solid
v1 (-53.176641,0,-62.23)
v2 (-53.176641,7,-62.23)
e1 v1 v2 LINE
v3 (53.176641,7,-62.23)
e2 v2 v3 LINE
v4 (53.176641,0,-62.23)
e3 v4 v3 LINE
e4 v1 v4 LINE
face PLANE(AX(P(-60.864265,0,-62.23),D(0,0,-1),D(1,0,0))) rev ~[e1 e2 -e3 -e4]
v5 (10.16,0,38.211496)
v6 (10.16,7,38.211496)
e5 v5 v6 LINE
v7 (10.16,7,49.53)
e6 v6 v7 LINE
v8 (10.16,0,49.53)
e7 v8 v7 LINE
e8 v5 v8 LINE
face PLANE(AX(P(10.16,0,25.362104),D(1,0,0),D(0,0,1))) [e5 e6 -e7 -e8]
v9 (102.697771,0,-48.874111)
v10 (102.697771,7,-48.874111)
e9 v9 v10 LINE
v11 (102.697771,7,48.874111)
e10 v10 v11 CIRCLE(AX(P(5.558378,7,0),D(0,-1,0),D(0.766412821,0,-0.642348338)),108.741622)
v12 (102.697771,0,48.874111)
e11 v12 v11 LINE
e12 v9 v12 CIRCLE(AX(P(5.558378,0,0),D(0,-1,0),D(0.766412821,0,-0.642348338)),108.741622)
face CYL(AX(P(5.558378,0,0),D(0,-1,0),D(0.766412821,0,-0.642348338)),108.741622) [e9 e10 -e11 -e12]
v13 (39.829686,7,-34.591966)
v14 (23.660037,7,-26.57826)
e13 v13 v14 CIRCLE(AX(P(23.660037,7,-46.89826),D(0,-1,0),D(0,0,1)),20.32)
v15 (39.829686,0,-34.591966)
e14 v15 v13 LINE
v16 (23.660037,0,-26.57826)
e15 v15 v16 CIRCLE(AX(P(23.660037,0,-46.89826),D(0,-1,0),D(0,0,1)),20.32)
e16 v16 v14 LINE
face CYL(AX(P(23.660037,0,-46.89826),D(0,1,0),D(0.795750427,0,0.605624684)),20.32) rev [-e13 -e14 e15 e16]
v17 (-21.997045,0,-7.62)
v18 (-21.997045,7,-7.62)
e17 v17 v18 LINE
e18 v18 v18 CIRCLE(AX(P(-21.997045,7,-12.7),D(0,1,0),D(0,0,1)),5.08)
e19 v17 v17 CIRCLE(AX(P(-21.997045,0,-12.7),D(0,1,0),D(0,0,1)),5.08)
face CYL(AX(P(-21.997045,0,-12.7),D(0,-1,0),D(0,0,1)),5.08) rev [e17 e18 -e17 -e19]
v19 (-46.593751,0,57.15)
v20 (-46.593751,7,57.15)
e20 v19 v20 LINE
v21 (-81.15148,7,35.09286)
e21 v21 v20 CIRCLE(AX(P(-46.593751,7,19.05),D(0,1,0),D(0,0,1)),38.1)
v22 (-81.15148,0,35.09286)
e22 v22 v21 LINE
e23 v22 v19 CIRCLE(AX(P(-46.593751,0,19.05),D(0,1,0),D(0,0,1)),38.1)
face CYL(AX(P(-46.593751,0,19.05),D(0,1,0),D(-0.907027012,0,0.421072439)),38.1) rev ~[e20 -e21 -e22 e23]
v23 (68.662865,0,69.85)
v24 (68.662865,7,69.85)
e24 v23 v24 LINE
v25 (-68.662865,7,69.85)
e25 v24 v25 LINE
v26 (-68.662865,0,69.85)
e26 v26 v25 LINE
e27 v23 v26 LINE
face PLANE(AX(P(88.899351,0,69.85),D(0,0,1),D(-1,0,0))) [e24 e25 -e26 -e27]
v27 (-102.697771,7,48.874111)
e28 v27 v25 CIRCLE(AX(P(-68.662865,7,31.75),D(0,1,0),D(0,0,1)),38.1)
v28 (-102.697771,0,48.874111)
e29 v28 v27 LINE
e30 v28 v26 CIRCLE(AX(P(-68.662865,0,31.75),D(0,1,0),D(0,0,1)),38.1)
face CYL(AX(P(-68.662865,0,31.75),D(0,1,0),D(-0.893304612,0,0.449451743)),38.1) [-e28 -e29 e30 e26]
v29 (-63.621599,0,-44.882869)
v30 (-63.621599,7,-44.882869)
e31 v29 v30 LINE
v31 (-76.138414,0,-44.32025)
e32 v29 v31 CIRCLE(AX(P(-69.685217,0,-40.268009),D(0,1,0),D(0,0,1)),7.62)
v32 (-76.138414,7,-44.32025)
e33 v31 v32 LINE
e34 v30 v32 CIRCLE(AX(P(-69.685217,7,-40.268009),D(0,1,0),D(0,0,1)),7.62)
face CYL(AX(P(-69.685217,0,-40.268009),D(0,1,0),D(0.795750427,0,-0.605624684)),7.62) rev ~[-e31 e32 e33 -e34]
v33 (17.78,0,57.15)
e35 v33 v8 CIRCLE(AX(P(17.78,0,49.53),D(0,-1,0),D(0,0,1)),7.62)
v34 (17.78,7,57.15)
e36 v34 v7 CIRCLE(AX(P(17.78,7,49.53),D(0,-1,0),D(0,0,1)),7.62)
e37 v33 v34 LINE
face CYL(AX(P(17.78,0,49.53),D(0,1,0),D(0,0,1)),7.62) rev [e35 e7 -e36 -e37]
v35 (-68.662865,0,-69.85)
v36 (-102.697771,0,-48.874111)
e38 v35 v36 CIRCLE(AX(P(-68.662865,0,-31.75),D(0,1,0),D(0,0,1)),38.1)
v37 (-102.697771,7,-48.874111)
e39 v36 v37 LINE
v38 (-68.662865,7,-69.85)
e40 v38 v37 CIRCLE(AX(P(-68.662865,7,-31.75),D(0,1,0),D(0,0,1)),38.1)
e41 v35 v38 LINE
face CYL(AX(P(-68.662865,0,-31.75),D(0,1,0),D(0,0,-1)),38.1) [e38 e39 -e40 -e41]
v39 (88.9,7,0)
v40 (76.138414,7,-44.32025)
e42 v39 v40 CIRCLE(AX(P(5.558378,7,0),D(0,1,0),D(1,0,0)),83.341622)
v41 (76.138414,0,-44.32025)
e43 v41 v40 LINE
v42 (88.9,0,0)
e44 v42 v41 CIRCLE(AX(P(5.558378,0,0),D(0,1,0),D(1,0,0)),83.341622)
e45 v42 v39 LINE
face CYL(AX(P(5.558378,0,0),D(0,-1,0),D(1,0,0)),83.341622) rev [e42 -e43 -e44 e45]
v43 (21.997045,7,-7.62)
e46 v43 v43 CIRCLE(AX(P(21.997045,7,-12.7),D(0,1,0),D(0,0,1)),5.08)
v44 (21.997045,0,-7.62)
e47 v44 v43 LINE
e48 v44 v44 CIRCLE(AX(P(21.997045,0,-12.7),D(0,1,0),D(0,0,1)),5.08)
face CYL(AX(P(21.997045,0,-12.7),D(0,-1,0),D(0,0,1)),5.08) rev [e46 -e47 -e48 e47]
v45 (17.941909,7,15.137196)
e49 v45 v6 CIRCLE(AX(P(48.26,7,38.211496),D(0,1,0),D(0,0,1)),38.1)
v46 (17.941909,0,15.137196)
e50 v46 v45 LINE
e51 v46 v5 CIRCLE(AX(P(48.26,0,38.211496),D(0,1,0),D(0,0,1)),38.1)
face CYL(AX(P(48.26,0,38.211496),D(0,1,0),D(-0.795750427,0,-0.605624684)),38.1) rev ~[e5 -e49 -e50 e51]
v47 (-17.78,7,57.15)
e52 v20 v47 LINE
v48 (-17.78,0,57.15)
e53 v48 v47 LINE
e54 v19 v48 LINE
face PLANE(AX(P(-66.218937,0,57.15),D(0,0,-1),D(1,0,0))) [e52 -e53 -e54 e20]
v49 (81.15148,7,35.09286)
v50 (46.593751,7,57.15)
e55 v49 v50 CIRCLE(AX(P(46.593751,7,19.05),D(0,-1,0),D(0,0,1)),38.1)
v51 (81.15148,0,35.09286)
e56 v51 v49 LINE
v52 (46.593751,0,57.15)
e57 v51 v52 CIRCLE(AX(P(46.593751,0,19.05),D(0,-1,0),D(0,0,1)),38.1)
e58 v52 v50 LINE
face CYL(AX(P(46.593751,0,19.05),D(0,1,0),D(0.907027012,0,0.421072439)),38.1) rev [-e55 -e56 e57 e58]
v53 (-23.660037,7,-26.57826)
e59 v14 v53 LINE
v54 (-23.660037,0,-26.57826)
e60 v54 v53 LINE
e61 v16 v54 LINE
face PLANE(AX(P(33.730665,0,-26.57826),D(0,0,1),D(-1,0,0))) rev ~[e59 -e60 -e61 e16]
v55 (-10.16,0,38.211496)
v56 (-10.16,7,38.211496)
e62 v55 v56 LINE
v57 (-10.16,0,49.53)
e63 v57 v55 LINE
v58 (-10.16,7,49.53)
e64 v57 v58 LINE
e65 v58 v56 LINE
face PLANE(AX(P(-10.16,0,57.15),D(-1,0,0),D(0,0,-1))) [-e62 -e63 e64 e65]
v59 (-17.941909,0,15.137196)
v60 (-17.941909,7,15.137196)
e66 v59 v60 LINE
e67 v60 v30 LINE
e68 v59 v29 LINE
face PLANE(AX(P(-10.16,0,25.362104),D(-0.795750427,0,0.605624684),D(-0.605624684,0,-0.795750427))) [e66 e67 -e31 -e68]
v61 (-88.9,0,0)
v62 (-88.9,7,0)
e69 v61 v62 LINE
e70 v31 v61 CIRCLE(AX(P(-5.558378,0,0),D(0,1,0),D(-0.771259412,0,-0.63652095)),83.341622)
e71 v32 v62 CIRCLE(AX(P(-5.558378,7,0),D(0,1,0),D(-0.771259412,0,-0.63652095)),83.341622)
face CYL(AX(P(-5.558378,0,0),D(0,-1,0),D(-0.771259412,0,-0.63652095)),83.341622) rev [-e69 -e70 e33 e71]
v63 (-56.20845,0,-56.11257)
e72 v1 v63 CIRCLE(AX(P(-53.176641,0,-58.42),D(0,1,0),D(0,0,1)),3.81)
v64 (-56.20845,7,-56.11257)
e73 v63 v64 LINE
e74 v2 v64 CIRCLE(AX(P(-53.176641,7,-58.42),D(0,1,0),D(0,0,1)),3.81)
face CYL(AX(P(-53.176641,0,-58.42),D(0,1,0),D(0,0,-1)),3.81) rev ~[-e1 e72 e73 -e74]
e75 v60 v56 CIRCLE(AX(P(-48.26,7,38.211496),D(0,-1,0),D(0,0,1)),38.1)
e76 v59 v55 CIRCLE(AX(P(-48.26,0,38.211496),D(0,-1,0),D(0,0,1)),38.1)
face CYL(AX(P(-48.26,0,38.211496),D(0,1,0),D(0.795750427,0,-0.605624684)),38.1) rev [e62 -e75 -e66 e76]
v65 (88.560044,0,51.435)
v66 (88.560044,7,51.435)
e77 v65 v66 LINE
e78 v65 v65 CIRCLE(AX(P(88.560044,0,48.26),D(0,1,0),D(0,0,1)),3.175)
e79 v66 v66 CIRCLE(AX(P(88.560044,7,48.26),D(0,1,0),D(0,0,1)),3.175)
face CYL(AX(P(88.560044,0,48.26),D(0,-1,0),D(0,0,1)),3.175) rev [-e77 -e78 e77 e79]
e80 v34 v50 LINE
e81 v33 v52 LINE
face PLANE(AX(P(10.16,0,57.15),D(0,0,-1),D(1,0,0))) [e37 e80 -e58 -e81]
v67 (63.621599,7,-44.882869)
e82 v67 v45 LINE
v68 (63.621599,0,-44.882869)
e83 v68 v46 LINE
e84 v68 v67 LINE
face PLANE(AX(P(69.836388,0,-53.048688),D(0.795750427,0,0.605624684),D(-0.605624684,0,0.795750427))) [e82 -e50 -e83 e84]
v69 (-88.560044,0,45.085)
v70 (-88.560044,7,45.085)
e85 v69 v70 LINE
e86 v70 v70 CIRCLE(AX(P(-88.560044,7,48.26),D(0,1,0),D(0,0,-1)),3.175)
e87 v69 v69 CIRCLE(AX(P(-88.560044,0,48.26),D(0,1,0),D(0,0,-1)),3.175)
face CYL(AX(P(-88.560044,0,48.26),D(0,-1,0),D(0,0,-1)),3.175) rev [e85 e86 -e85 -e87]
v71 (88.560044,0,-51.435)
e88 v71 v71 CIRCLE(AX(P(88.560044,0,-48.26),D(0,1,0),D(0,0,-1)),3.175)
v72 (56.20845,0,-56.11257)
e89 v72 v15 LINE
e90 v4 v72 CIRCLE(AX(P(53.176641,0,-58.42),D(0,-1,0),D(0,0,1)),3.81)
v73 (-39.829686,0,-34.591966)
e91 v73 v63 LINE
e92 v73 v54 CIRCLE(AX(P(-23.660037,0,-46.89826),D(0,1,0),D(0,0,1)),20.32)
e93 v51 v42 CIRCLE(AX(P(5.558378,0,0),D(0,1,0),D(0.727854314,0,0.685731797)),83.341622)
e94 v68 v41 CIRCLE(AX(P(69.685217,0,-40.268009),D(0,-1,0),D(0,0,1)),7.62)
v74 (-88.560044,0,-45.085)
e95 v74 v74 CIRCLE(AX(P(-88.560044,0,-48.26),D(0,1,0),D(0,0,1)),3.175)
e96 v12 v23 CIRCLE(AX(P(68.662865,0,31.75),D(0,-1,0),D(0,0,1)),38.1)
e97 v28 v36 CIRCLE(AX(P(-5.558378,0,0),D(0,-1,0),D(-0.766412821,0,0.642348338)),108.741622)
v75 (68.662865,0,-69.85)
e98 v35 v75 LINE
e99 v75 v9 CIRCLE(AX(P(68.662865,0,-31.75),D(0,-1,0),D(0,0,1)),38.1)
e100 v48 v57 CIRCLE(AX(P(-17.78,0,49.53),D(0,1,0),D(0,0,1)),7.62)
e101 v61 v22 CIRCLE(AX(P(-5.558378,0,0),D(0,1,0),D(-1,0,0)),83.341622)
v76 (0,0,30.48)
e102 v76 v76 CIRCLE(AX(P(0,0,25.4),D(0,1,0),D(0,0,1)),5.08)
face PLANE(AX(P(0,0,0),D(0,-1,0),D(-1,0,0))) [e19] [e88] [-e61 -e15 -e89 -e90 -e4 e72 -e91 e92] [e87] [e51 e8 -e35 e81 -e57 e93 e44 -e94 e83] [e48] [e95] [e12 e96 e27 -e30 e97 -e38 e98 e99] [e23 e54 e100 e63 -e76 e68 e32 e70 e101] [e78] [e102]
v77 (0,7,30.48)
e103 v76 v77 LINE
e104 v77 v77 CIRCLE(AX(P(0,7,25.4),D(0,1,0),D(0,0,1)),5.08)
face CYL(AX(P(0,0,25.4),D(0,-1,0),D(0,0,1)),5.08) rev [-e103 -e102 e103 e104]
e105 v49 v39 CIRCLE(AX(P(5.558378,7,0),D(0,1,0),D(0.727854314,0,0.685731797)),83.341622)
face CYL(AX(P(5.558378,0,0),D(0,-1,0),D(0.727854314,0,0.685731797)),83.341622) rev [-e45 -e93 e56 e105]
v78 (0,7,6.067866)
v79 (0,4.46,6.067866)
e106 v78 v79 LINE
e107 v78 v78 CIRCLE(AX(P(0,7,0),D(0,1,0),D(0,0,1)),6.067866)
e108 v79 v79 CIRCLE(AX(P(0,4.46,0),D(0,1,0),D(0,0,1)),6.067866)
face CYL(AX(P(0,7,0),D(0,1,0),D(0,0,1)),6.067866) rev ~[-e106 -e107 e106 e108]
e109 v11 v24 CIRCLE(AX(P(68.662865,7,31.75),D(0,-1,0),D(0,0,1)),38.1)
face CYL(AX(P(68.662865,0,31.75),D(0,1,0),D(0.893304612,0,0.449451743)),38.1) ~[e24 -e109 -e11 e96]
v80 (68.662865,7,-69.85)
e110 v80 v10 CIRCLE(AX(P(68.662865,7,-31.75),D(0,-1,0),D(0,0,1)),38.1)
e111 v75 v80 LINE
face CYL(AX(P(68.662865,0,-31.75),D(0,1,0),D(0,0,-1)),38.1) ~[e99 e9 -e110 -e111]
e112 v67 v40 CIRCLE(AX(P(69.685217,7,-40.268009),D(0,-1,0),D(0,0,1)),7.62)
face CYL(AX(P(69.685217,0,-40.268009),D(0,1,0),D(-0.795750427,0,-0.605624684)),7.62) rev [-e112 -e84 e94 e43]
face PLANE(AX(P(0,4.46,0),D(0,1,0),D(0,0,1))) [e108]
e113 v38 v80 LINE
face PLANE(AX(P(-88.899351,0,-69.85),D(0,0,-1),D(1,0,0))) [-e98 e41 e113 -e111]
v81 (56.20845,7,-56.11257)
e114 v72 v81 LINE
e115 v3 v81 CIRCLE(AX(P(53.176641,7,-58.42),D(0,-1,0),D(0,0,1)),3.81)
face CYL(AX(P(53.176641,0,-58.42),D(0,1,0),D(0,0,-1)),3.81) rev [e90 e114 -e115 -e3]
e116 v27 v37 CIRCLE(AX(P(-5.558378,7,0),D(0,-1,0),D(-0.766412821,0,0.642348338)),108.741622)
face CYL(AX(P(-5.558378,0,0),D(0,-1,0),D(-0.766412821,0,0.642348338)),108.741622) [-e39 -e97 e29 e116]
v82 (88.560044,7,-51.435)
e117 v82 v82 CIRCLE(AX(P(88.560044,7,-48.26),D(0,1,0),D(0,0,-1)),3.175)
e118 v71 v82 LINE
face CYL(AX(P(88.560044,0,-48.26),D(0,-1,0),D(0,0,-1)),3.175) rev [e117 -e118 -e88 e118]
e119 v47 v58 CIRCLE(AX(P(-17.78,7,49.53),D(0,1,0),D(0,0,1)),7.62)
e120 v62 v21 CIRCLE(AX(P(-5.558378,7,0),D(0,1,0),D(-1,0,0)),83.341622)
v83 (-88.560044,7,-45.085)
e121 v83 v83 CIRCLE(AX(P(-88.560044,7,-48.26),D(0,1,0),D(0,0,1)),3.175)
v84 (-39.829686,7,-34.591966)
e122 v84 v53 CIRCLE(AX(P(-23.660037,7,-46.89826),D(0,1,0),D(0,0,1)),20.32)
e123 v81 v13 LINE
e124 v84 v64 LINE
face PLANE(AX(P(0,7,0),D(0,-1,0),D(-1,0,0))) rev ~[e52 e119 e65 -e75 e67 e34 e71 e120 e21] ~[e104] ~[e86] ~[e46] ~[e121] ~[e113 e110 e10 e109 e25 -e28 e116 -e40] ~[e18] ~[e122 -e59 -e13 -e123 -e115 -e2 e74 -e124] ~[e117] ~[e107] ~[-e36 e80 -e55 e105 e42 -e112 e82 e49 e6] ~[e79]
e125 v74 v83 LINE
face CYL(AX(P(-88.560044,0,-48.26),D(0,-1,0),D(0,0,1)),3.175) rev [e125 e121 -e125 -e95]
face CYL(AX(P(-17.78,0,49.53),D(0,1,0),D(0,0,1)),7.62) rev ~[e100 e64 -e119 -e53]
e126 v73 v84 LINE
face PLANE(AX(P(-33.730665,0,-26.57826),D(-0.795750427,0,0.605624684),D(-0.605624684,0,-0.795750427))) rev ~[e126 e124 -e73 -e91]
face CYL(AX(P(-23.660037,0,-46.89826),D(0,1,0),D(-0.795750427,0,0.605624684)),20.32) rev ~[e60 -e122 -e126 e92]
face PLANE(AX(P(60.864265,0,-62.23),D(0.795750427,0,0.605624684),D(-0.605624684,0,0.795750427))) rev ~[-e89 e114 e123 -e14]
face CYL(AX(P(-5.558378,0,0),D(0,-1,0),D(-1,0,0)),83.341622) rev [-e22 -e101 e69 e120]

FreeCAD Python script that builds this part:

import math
import FreeCAD as App
import Part
import Sketcher
Q = App.Units.Quantity


def edges_at(feature, points):
    """Names of the edges that pass closest to the given points."""
    edges = feature.Shape.Edges
    near = lambda p: min(range(len(edges)), key=lambda i: edges[i].distToShape(Part.Vertex(*p))[0])
    return sorted({f"Edge{near(p) + 1}" for p in points})


def add_polygon(sketch, points):
    """Adds a closed chain of lines whose ends are joined by coincident constraints."""
    first, n = sketch.GeometryCount, len(points)
    for a, b in zip(points, points[1:] + points[:1]):
        sketch.addGeometry(Part.LineSegment(App.Vector(*a, 0), App.Vector(*b, 0)), False)
    for i in range(n):
        sketch.addConstraint(Sketcher.Constraint("Coincident", first + i, 2, first + (i + 1) % n, 1))

doc = App.newDocument("Part")
body = doc.addObject("PartDesign::Body", "Body")

# Sketch on XZ plane
sketch1 = doc.addObject("Sketcher::SketchObject", "Sketch")
body.addObject(sketch1)
sketch1.AttachmentSupport = (doc.XZ_Plane, [""])
sketch1.MapMode = "FlatFace"
sketch1.addGeometry(Part.LineSegment(App.Vector(88.899351, -69.85, 0), App.Vector(-88.899351, -69.85, 0)), False)  # 0
sketch1.addGeometry(Part.ArcOfCircle(Part.Circle(App.Vector(-5.558378, 0, 0), App.Vector(0, 0, 1), 108.741622), math.radians(140.032847), math.radians(219.967153)), False)  # 1
sketch1.addGeometry(Part.LineSegment(App.Vector(-88.899351, 69.85, 0), App.Vector(88.899351, 69.85, 0)), False)  # 2
sketch1.addGeometry(Part.ArcOfCircle(Part.Circle(App.Vector(5.558378, 0, 0), App.Vector(0, 0, 1), 108.741622), math.radians(-39.967153), math.radians(39.967153)), False)  # 3
sketch1.addGeometry(Part.Circle(App.Vector(88.560044, 48.26, 0), App.Vector(0, 0, 1), 3.175), False)  # 4
sketch1.addGeometry(Part.LineSegment(App.Vector(10.16, 25.362104, 0), App.Vector(69.836388, -53.048688, 0)), False)  # 5
sketch1.addGeometry(Part.ArcOfCircle(Part.Circle(App.Vector(5.558378, 0, 0), App.Vector(0, 0, 1), 83.341622), math.radians(-39.532882), math.radians(0)), False)  # 6
sketch1.addGeometry(Part.ArcOfCircle(Part.Circle(App.Vector(5.558378, 0, 0), App.Vector(0, 0, 1), 83.341622), math.radians(0), math.radians(43.293186)), False)  # 7
sketch1.addGeometry(Part.LineSegment(App.Vector(66.218937, 57.15, 0), App.Vector(10.16, 57.15, 0)), False)  # 8
sketch1.addGeometry(Part.LineSegment(App.Vector(10.16, 57.15, 0), App.Vector(10.16, 25.362104, 0)), False)  # 9
sketch1.addGeometry(Part.Circle(App.Vector(-88.560044, 48.26, 0), App.Vector(0, 0, 1), 3.175), False)  # 10
sketch1.addGeometry(Part.Circle(App.Vector(0, 25.4, 0), App.Vector(0, 0, 1), 5.08), False)  # 11
sketch1.addGeometry(Part.ArcOfCircle(Part.Circle(App.Vector(-5.558378, 0, 0), App.Vector(0, 0, 1), 83.341622), math.radians(136.706814), math.radians(180)), False)  # 12
sketch1.addGeometry(Part.ArcOfCircle(Part.Circle(App.Vector(-5.558378, 0, 0), App.Vector(0, 0, 1), 83.341622), math.radians(180), math.radians(219.532882)), False)  # 13
sketch1.addGeometry(Part.LineSegment(App.Vector(-69.836388, -53.048688, 0), App.Vector(-10.16, 25.362104, 0)), False)  # 14
sketch1.addGeometry(Part.LineSegment(App.Vector(-10.16, 25.362104, 0), App.Vector(-10.16, 57.15, 0)), False)  # 15
sketch1.addGeometry(Part.LineSegment(App.Vector(-10.16, 57.15, 0), App.Vector(-66.218937, 57.15, 0)), False)  # 16
sketch1.addGeometry(Part.Circle(App.Vector(21.997045, -12.7, 0), App.Vector(0, 0, 1), 5.08), False)  # 17
sketch1.addGeometry(Part.Circle(App.Vector(88.560044, -48.26, 0), App.Vector(0, 0, 1), 3.175), False)  # 18
sketch1.addGeometry(Part.Circle(App.Vector(-21.997045, -12.7, 0), App.Vector(0, 0, 1), 5.08), False)  # 19
add_polygon(sketch1, [(-60.864265, -62.23), (60.864265, -62.23), (33.730665, -26.57826), (-33.730665, -26.57826)])  # lines 20-23
sketch1.addGeometry(Part.Circle(App.Vector(-88.560044, -48.26, 0), App.Vector(0, 0, 1), 3.175), False)  # 24
sketch1.addConstraint(Sketcher.Constraint("Coincident", 0, 2, 1, 2))
sketch1.addConstraint(Sketcher.Constraint("Coincident", 1, 1, 2, 1))
sketch1.addConstraint(Sketcher.Constraint("Coincident", 2, 2, 3, 2))
sketch1.addConstraint(Sketcher.Constraint("Coincident", 3, 1, 0, 1))
sketch1.addConstraint(Sketcher.Constraint("Coincident", 5, 2, 6, 1))
sketch1.addConstraint(Sketcher.Constraint("Tangent", 6, 2, 7, 1))
sketch1.addConstraint(Sketcher.Constraint("Coincident", 7, 2, 8, 1))
sketch1.addConstraint(Sketcher.Constraint("Coincident", 8, 2, 9, 1))
sketch1.addConstraint(Sketcher.Constraint("Coincident", 9, 2, 5, 1))
sketch1.addConstraint(Sketcher.Constraint("Tangent", 12, 2, 13, 1))
sketch1.addConstraint(Sketcher.Constraint("Coincident", 13, 2, 14, 1))
sketch1.addConstraint(Sketcher.Constraint("Coincident", 14, 2, 15, 1))
sketch1.addConstraint(Sketcher.Constraint("Coincident", 15, 2, 16, 1))
sketch1.addConstraint(Sketcher.Constraint("Coincident", 16, 2, 12, 1))
sketch1.addConstraint(Sketcher.Constraint("Horizontal", 0))
sketch1.addConstraint(Sketcher.Constraint("Horizontal", 2))
sketch1.addConstraint(Sketcher.Constraint("Horizontal", 8))
sketch1.addConstraint(Sketcher.Constraint("Vertical", 9))
sketch1.addConstraint(Sketcher.Constraint("Vertical", 15))
sketch1.addConstraint(Sketcher.Constraint("Horizontal", 16))
sketch1.addConstraint(Sketcher.Constraint("Horizontal", 20))
sketch1.addConstraint(Sketcher.Constraint("Horizontal", 22))
sketch1.addConstraint(Sketcher.Constraint("Coincident", 6, 3, 3, 3))
sketch1.addConstraint(Sketcher.Constraint("Coincident", 12, 3, 1, 3))
sketch1.addConstraint(Sketcher.Constraint("Equal", 1, 3))
sketch1.addConstraint(Sketcher.Constraint("Equal", 6, 7))
sketch1.addConstraint(Sketcher.Constraint("Equal", 4, 10))
sketch1.addConstraint(Sketcher.Constraint("Equal", 7, 12))
sketch1.addConstraint(Sketcher.Constraint("Equal", 12, 13))
sketch1.addConstraint(Sketcher.Constraint("Equal", 11, 17))
sketch1.addConstraint(Sketcher.Constraint("Equal", 10, 18))
sketch1.addConstraint(Sketcher.Constraint("Equal", 17, 19))
sketch1.addConstraint(Sketcher.Constraint("Equal", 18, 24))
sketch1.addConstraint(Sketcher.Constraint("Symmetric", 1, 3, 3, 3, -1, 1))
sketch1.addConstraint(Sketcher.Constraint("Symmetric", 10, 3, 18, 3, -1, 1))
sketch1.addConstraint(Sketcher.Constraint("Symmetric", 4, 3, 24, 3, -1, 1))
sketch1.addConstraint(Sketcher.Constraint("Symmetric", 4, 3, 10, 3, -2))
sketch1.addConstraint(Sketcher.Constraint("Symmetric", 17, 3, 19, 3, -2))
sketch1.addConstraint(Sketcher.Constraint("Symmetric", 5, 2, 13, 2, -2))
sketch1.addConstraint(Sketcher.Constraint("Symmetric", 9, 2, 14, 2, -2))
sketch1.addConstraint(Sketcher.Constraint("PointOnObject", 11, 3, -2))
sketch1.addConstraint(Sketcher.Constraint("PointOnObject", 6, 2, -1))
sketch1.addConstraint(Sketcher.Constraint("PointOnObject", 12, 2, -1))
sketch1.addConstraint(Sketcher.Constraint("Parallel", 5, 21))
sketch1.addConstraint(Sketcher.Constraint("Parallel", 14, 23))
sketch1.addConstraint(Sketcher.Constraint("Horizontal", 8, 2, 15, 2))
sketch1.addConstraint(Sketcher.Constraint("Vertical", 0, 2, 1, 1))
sketch1.addConstraint(Sketcher.Constraint("Diameter", 11, Q("0.4 in")))
sketch1.addConstraint(Sketcher.Constraint("Diameter", 4, Q("0.25 in")))
sketch1.addConstraint(Sketcher.Constraint("DistanceY", -1, 1, 11, 3, Q("1 in")))
sketch1.addConstraint(Sketcher.Constraint("DistanceY", -1, 1, 4, 3, Q("1.9 in")))
sketch1.addConstraint(Sketcher.Constraint("DistanceY", 17, 3, -1, 1, Q("0.5 in")))
sketch1.addConstraint(Sketcher.Constraint("DistanceX", -1, 1, 6, 2, Q("3.5 in")))
sketch1.addConstraint(Sketcher.Constraint("DistanceX", -1, 1, 8, 2, Q("0.4 in")))
sketch1.addConstraint(Sketcher.Constraint("DistanceY", 7, 2, 2, 2, Q("0.5 in")))
sketch1.addConstraint(Sketcher.Constraint("DistanceY", 3, 1, 20, 2, Q("0.3 in")))
sketch1.addConstraint(Sketcher.Constraint("DistanceY", 0, 2, -1, 1, Q("2.75 in")))
sketch1.addConstraint(Sketcher.Constraint("Radius", 1, 108.741622))
sketch1.addConstraint(Sketcher.Constraint("Radius", 6, 83.341622))
sketch1.addConstraint(Sketcher.Constraint("DistanceX", 20, 1, 20, 2, 121.72853))
sketch1.addConstraint(Sketcher.Constraint("DistanceX", 22, 2, 22, 1, 67.46133))
sketch1.addConstraint(Sketcher.Constraint("DistanceX", 17, 3, 18, 3, 66.562999))
sketch1.addConstraint(Sketcher.Constraint("DistanceY", 9, 2, 9, 1, 31.787896))
sketch1.addConstraint(Sketcher.Constraint("DistanceX", -1, 1, 5, 2, 69.836388))
sketch1.addConstraint(Sketcher.Constraint("DistanceX", 10, 3, 4, 3, 177.120088))
sketch1.addConstraint(Sketcher.Constraint("DistanceX", 20, 2, 18, 3, 27.695779))
pad1 = doc.addObject("PartDesign::Pad", "Pad")
body.addObject(pad1)
pad1.Profile = sketch1
pad1.Length = 7
pad1.Reversed = True
doc.recompute()

fillet = doc.addObject("PartDesign::Fillet", "Fillet")
body.addObject(fillet)
fillet.Base = (pad1, edges_at(pad1, [
    (-66.219, 3.5, 57.15),
    (66.219, 3.5, 57.15),
    (-88.899, 3.5, -69.85),
    (88.899, 3.5, -69.85),
    (88.899, 3.5, 69.85),
    (-88.899, 3.5, 69.85),
]))
fillet.Radius = Q("1.5 in")
doc.recompute()

fillet2 = doc.addObject("PartDesign::Fillet", "Fillet001")
body.addObject(fillet2)
fillet2.Base = (fillet, edges_at(fillet, [(-10.16, 3.5, 57.15), (10.16, 3.5, 57.15)]))
fillet2.Radius = Q("0.3 in")
doc.recompute()

fillet3 = doc.addObject("PartDesign::Fillet", "Fillet002")
body.addObject(fillet3)
fillet3.Base = (fillet2, edges_at(fillet2, [(-69.836, 3.5, -53.049), (69.836, 3.5, -53.049)]))
fillet3.Radius = Q("0.3 in")
doc.recompute()

fillet4 = doc.addObject("PartDesign::Fillet", "Fillet003")
body.addObject(fillet4)
fillet4.Base = (fillet3, edges_at(fillet3, [(60.864, 3.5, -62.23), (-60.864, 3.5, -62.23)]))
fillet4.Radius = Q("0.15 in")
doc.recompute()

fillet5 = doc.addObject("PartDesign::Fillet", "Fillet004")
body.addObject(fillet5)
fillet5.Base = (fillet4, edges_at(fillet4, [(33.731, 3.5, -26.578), (-33.731, 3.5, -26.578)]))
fillet5.Radius = Q("0.8 in")
doc.recompute()

fillet6 = doc.addObject("PartDesign::Fillet", "Fillet005")
body.addObject(fillet6)
fillet6.Base = (fillet5, edges_at(fillet5, [(-10.16, 3.5, 25.362), (10.16, 3.5, 25.362)]))
fillet6.Radius = Q("1.5 in")

# Sketch on XZ plane
sketch2 = doc.addObject("Sketcher::SketchObject", "Sketch001")
body.addObject(sketch2)
sketch2.AttachmentSupport = (doc.XZ_Plane, [""])
sketch2.MapMode = "FlatFace"
sketch2.AttachmentOffset = App.Placement(App.Vector(0, 0, -7), App.Rotation())
sketch2.addGeometry(Part.Circle(App.Vector(0, 0, 0), App.Vector(0, 0, 1), 6.067866), False)
sketch2.addConstraint(Sketcher.Constraint("Coincident", 0, 3, -1, 1))
sketch2.addConstraint(Sketcher.Constraint("Diameter", 0, 12.135732))
pocket1 = doc.addObject("PartDesign::Pocket", "Pocket")
body.addObject(pocket1)
pocket1.Profile = sketch2
pocket1.Length = Q("0.1 in")
pocket1.Reversed = True

doc.recompute()
